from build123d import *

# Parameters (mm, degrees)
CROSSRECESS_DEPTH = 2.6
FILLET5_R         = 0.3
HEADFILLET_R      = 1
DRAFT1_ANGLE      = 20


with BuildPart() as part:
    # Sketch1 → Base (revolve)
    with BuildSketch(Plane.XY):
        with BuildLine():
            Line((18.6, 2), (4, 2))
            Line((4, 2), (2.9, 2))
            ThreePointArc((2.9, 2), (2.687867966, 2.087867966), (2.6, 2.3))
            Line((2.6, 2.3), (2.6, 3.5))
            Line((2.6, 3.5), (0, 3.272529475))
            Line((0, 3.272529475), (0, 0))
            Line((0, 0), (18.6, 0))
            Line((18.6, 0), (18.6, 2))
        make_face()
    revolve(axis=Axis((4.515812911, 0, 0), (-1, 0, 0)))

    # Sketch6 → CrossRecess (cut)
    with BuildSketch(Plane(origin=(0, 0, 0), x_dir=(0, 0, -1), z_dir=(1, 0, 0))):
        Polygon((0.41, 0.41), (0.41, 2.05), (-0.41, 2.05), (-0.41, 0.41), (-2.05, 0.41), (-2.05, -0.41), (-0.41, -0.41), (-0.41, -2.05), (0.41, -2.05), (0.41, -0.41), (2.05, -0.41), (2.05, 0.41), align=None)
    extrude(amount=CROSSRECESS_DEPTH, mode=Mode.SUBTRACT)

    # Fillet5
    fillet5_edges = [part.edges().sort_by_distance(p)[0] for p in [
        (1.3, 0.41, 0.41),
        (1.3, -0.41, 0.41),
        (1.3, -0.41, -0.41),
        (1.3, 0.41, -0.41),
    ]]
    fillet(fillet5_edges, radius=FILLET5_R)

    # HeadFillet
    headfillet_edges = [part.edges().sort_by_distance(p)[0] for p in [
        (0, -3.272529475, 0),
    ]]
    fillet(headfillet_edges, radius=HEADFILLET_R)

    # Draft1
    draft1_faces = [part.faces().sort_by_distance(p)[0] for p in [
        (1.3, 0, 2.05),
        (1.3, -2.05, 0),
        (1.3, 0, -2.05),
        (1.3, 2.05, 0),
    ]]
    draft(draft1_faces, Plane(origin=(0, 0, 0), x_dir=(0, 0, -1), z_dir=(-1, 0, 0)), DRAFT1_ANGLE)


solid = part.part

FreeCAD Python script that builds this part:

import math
import FreeCAD as App
import Part
import Sketcher
Q = App.Units.Quantity


def edges_at(feature, points):
    """Names of the edges that pass closest to the given points."""
    edges = feature.Shape.Edges
    near = lambda p: min(range(len(edges)), key=lambda i: edges[i].distToShape(Part.Vertex(*p))[0])
    return sorted({f"Edge{near(p) + 1}" for p in points})


def faces_at(feature, points):
    """Names of the faces that lie closest to the given points."""
    faces = feature.Shape.Faces
    near = lambda p: min(range(len(faces)), key=lambda i: faces[i].distToShape(Part.Vertex(*p))[0])
    return sorted({f"Face{near(p) + 1}" for p in points})

doc = App.newDocument("Part")
body = doc.addObject("PartDesign::Body", "Body")

# Sketch on XY plane
sketch1 = doc.addObject("Sketcher::SketchObject", "Sketch")
body.addObject(sketch1)
sketch1.AttachmentSupport = (doc.XY_Plane, [""])
sketch1.MapMode = "FlatFace"
sketch1.addGeometry([
    Part.LineSegment(App.Vector(18.6, 2, 0), App.Vector(2.9, 2, 0)),  # 0
    Part.ArcOfCircle(Part.Circle(App.Vector(2.9, 2.3, 0), App.Vector(0, 0, 1), 0.3), math.radians(-180), math.radians(-90)),  # 1
    Part.LineSegment(App.Vector(2.6, 2.3, 0), App.Vector(2.6, 3.5, 0)),  # 2
    Part.LineSegment(App.Vector(2.6, 3.5, 0), App.Vector(0, 3.272529, 0)),  # 3
    Part.LineSegment(App.Vector(0, 3.272529, 0), App.Vector(0, 0, 0)),  # 4
    Part.LineSegment(App.Vector(0, 0, 0), App.Vector(18.6, 0, 0)),  # 5
    Part.LineSegment(App.Vector(18.6, 0, 0), App.Vector(18.6, 2, 0)),  # 6
], False)
sketch1.addConstraint([
    Sketcher.Constraint("Tangent", 0, 2, 1, 2),
    Sketcher.Constraint("Tangent", 1, 1, 2, 1),
    Sketcher.Constraint("Coincident", 2, 2, 3, 1),
    Sketcher.Constraint("Coincident", 3, 2, 4, 1),
    Sketcher.Constraint("Coincident", 4, 2, 5, 1),
    Sketcher.Constraint("Coincident", 5, 2, 6, 1),
    Sketcher.Constraint("Coincident", 6, 2, 0, 1),
    Sketcher.Constraint("Horizontal", 0),
    Sketcher.Constraint("Vertical", 2),
    Sketcher.Constraint("Vertical", 4),
    Sketcher.Constraint("Horizontal", 5),
    Sketcher.Constraint("Vertical", 6),
    Sketcher.Constraint("Coincident", 4, 2, -1, 1),
    Sketcher.Constraint("Radius", 1, Q("0.3 mm")),
    Sketcher.Constraint("DistanceY", 6, 1, 6, 2, Q("2 mm")),
    Sketcher.Constraint("Angle", 3, Q("-175 deg")),
    Sketcher.Constraint("DistanceX", 0, 2, 0, 1, Q("15.7 mm")),
    Sketcher.Constraint("DistanceX", 5, 1, 5, 2, Q("18.6 mm")),
    Sketcher.Constraint("DistanceY", 2, 1, 2, 2, Q("1.2 mm")),
])
revolution = doc.addObject("PartDesign::Revolution", "Revolution")
body.addObject(revolution)
revolution.Profile = sketch1
revolution.ReferenceAxis = (sketch1, ["H_Axis"])
revolution.Angle = 360

# Sketch on YZ plane
sketch2 = doc.addObject("Sketcher::SketchObject", "Sketch001")
body.addObject(sketch2)
sketch2.AttachmentSupport = (doc.YZ_Plane, [""])
sketch2.MapMode = "FlatFace"
sketch2.addGeometry([
    Part.LineSegment(App.Vector(0.41, -0.41, 0), App.Vector(2.05, -0.41, 0)),  # 0
    Part.LineSegment(App.Vector(2.05, -0.41, 0), App.Vector(2.05, 0.41, 0)),  # 1
    Part.LineSegment(App.Vector(2.05, 0.41, 0), App.Vector(0.41, 0.41, 0)),  # 2
    Part.LineSegment(App.Vector(0.41, 0.41, 0), App.Vector(0.41, 2.05, 0)),  # 3
    Part.LineSegment(App.Vector(0.41, 2.05, 0), App.Vector(-0.41, 2.05, 0)),  # 4
    Part.LineSegment(App.Vector(-0.41, 2.05, 0), App.Vector(-0.41, 0.41, 0)),  # 5
    Part.LineSegment(App.Vector(-0.41, 0.41, 0), App.Vector(-2.05, 0.41, 0)),  # 6
    Part.LineSegment(App.Vector(-2.05, 0.41, 0), App.Vector(-2.05, -0.41, 0)),  # 7
    Part.LineSegment(App.Vector(-2.05, -0.41, 0), App.Vector(-0.41, -0.41, 0)),  # 8
    Part.LineSegment(App.Vector(-0.41, -0.41, 0), App.Vector(-0.41, -2.05, 0)),  # 9
    Part.LineSegment(App.Vector(-0.41, -2.05, 0), App.Vector(0.41, -2.05, 0)),  # 10
    Part.LineSegment(App.Vector(0.41, -2.05, 0), App.Vector(0.41, -0.41, 0)),  # 11
], False)
sketch2.addConstraint([
    Sketcher.Constraint("Coincident", 0, 2, 1, 1),
    Sketcher.Constraint("Coincident", 1, 2, 2, 1),
    Sketcher.Constraint("Coincident", 2, 2, 3, 1),
    Sketcher.Constraint("Coincident", 3, 2, 4, 1),
    Sketcher.Constraint("Coincident", 4, 2, 5, 1),
    Sketcher.Constraint("Coincident", 5, 2, 6, 1),
    Sketcher.Constraint("Coincident", 6, 2, 7, 1),
    Sketcher.Constraint("Coincident", 7, 2, 8, 1),
    Sketcher.Constraint("Coincident", 8, 2, 9, 1),
    Sketcher.Constraint("Coincident", 9, 2, 10, 1),
    Sketcher.Constraint("Coincident", 10, 2, 11, 1),
    Sketcher.Constraint("Coincident", 11, 2, 0, 1),
    Sketcher.Constraint("Horizontal", 0),
    Sketcher.Constraint("Vertical", 1),
    Sketcher.Constraint("Horizontal", 2),
    Sketcher.Constraint("Vertical", 3),
    Sketcher.Constraint("Horizontal", 4),
    Sketcher.Constraint("Vertical", 5),
    Sketcher.Constraint("Horizontal", 6),
    Sketcher.Constraint("Vertical", 7),
    Sketcher.Constraint("Horizontal", 8),
    Sketcher.Constraint("Vertical", 9),
    Sketcher.Constraint("Horizontal", 10),
    Sketcher.Constraint("Vertical", 11),
    Sketcher.Constraint("Symmetric", 0, 2, 6, 2, -1, 1),
    Sketcher.Constraint("Symmetric", 2, 2, 8, 2, -1, 1),
    Sketcher.Constraint("Symmetric", 4, 2, 10, 2, -1, 1),
    Sketcher.Constraint("Symmetric", 2, 2, 5, 2, -2),
    Sketcher.Constraint("Equal", 10, 1),
    Sketcher.Constraint("Equal", 8, 3),
    Sketcher.Constraint("DistanceX", 0, 1, 0, 2, Q("1.64 mm")),
    Sketcher.Constraint("DistanceX", 4, 2, 4, 1, Q("0.82 mm")),
])
pocket1 = doc.addObject("PartDesign::Pocket", "Pocket")
body.addObject(pocket1)
pocket1.Profile = sketch2
pocket1.Length = 2.6
pocket1.Reversed = True
doc.recompute()

fillet = doc.addObject("PartDesign::Fillet", "Fillet")
body.addObject(fillet)
fillet.Base = (pocket1, edges_at(pocket1, [
    (1.3, 0.41, 0.41),
    (1.3, -0.41, 0.41),
    (1.3, -0.41, -0.41),
    (1.3, 0.41, -0.41),
]))
fillet.Radius = 0.3
doc.recompute()

fillet2 = doc.addObject("PartDesign::Fillet", "Fillet001")
body.addObject(fillet2)
fillet2.Base = (fillet, edges_at(fillet, [(0, -3.273, 0)]))
fillet2.Radius = 1
doc.recompute()

draft = doc.addObject("PartDesign::Draft", "Draft")
body.addObject(draft)
draft.Base = (fillet2, faces_at(fillet2, [
    (1.3, 0, 2.05),
    (1.3, -2.05, 0),
    (1.3, 0, -2.05),
    (1.3, 2.05, 0),
]))
draft.NeutralPlane = (doc.YZ_Plane, [""])
draft.Angle = 20
draft.Reversed = True

doc.recompute()
